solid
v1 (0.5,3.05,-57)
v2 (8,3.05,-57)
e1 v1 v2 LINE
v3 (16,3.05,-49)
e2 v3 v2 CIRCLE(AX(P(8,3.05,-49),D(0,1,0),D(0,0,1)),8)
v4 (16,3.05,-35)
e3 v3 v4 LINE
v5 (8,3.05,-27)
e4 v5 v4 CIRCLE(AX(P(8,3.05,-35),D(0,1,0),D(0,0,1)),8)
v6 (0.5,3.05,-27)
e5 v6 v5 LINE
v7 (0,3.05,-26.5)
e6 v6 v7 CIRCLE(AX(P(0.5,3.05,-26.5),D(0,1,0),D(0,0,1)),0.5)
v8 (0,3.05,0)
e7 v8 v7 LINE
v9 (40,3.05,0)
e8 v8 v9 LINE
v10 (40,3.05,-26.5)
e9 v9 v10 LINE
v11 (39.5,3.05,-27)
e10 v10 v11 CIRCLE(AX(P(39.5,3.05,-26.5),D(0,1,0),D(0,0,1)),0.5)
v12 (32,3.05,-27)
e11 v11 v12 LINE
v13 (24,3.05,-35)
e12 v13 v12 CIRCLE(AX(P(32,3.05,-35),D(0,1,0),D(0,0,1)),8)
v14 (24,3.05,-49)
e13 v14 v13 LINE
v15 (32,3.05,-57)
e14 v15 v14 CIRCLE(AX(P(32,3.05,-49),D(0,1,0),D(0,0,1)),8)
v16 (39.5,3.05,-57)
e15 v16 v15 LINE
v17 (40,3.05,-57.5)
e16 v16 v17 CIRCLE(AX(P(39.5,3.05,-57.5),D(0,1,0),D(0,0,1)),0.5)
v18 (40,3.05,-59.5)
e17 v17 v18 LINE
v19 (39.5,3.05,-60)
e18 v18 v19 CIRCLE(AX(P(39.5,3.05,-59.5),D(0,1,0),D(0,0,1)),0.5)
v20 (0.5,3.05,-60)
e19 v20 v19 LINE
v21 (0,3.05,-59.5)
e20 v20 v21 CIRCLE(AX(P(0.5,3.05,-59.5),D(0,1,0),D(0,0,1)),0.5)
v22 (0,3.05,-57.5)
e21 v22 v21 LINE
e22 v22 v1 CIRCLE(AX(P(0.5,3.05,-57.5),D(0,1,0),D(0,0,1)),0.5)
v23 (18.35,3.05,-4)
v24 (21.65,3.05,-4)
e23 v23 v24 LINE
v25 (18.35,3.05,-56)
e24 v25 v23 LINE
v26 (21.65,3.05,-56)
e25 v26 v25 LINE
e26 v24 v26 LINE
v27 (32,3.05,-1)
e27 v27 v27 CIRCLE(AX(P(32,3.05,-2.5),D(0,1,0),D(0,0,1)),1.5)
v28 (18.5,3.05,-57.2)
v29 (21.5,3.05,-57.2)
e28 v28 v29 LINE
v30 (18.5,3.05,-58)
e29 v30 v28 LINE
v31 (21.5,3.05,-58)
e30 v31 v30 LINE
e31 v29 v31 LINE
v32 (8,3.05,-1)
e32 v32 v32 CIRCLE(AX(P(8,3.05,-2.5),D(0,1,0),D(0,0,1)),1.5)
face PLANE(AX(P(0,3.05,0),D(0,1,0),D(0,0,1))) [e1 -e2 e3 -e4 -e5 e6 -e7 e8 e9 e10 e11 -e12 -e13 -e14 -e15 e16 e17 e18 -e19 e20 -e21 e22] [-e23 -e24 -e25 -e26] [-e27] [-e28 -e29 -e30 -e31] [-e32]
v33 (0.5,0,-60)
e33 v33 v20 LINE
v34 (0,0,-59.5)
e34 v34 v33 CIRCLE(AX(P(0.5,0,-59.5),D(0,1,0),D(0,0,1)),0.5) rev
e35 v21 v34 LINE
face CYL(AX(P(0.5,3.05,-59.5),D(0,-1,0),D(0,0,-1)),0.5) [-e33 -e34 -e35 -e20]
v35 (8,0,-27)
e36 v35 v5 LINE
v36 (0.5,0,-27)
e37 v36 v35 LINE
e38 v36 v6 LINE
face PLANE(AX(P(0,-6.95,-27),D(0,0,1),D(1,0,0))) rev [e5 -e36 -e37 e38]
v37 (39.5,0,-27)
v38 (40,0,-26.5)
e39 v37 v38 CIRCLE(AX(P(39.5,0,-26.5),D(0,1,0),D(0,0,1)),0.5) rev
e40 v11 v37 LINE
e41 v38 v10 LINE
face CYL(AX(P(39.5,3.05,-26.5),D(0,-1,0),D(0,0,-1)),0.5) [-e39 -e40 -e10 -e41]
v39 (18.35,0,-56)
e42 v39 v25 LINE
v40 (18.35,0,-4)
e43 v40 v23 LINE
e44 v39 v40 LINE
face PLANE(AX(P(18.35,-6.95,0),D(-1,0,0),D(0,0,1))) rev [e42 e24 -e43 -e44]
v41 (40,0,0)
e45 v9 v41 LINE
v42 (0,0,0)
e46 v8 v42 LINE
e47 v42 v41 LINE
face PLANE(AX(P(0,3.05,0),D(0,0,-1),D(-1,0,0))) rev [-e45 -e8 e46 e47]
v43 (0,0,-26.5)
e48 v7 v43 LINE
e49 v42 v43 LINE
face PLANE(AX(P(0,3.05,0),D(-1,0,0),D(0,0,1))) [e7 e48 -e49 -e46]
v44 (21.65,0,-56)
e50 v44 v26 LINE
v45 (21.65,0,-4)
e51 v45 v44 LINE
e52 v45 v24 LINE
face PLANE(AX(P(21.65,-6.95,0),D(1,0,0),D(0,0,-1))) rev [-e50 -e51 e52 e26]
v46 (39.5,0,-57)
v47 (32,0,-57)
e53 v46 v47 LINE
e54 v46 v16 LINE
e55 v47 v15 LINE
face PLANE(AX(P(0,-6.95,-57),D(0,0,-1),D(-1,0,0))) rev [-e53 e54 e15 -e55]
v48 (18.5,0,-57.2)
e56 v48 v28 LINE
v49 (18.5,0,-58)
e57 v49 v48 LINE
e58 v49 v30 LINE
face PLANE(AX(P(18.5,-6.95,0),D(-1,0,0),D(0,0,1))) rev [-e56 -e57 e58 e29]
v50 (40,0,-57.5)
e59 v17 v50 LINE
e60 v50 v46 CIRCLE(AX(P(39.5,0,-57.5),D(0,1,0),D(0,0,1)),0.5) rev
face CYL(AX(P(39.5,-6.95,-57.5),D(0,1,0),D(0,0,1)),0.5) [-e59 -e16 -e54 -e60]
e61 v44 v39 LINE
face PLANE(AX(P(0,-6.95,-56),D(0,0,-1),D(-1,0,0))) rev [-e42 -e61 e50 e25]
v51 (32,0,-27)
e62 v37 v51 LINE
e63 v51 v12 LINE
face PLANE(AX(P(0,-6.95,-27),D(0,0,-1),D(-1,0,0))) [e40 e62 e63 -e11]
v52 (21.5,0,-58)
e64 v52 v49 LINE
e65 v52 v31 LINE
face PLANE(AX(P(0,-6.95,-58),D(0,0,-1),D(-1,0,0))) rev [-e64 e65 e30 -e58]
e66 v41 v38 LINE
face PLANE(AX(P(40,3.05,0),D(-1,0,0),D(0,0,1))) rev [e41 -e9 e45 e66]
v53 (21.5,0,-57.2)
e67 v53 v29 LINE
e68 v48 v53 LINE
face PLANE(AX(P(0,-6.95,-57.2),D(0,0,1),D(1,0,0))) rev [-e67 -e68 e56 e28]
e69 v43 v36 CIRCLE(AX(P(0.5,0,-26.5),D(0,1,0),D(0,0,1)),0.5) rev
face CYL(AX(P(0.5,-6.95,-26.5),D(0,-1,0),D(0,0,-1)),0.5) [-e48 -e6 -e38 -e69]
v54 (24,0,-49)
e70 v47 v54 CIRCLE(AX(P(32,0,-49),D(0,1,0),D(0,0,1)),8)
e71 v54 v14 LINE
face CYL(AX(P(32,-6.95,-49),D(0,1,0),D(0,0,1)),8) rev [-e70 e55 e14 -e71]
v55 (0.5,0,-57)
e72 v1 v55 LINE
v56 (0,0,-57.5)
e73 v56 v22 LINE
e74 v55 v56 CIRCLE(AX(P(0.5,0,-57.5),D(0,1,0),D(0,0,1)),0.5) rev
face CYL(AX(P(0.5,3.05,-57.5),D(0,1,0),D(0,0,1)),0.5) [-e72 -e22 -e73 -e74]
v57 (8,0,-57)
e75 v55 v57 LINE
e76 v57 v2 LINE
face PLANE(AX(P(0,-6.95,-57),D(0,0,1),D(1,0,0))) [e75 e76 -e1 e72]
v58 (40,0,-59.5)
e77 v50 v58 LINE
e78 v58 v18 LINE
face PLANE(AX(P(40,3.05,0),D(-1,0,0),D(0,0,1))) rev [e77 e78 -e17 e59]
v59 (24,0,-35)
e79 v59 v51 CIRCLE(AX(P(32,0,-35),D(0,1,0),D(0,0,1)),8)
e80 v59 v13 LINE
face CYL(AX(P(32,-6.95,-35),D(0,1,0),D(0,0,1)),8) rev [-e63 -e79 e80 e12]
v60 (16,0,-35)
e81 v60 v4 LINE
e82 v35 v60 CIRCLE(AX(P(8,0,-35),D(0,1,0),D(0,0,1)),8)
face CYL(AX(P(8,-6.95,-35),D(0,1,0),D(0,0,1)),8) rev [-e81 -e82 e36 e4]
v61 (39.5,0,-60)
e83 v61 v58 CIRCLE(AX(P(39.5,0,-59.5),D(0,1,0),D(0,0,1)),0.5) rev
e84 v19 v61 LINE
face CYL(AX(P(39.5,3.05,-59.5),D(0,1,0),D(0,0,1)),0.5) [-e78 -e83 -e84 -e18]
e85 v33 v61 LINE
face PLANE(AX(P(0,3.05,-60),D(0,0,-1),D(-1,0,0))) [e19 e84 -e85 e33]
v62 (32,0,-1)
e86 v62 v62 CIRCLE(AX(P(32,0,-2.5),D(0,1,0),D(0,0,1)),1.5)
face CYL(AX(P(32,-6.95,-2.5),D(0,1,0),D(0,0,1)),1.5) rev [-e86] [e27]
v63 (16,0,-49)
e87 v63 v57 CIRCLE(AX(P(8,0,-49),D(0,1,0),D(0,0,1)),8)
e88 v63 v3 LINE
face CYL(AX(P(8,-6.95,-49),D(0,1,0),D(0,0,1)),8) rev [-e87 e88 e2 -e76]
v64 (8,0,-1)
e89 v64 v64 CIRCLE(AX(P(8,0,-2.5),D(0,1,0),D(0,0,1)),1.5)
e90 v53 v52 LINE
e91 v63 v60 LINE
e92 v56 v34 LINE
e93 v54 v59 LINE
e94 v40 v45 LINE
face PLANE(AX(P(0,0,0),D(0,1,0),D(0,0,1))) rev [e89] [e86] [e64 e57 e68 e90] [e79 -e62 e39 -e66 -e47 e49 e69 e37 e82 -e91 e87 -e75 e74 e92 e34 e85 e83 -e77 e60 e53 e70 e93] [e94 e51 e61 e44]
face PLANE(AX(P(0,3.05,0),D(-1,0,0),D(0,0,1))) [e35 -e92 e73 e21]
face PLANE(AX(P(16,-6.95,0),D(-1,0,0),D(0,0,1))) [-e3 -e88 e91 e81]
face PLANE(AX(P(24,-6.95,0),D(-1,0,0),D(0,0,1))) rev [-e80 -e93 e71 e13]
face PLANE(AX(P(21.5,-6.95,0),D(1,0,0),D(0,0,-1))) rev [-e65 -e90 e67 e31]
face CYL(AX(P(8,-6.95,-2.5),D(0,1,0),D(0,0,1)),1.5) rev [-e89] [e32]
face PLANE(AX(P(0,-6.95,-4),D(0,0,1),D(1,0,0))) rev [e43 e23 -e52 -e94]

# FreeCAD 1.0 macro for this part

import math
import FreeCAD as App
import Part
import Sketcher
Q = App.Units.Quantity


def edges_at(feature, points):
    """Names of the edges that pass closest to the given points."""
    edges = feature.Shape.Edges
    near = lambda p: min(range(len(edges)), key=lambda i: edges[i].distToShape(Part.Vertex(*p))[0])
    return sorted({f"Edge{near(p) + 1}" for p in points})

doc = App.newDocument("Part")
body = doc.addObject("PartDesign::Body", "Body")

# Sketch on XZ plane
sketch1 = doc.addObject("Sketcher::SketchObject", "Sketch")
body.addObject(sketch1)
sketch1.AttachmentSupport = (doc.XZ_Plane, [""])
sketch1.MapMode = "FlatFace"
sketch1.addGeometry([
    Part.LineSegment(App.Vector(0, -60, 0), App.Vector(0, 0, 0)),
    Part.LineSegment(App.Vector(0, 0, 0), App.Vector(40, 0, 0)),
    Part.LineSegment(App.Vector(40, 0, 0), App.Vector(40, -60, 0)),
    Part.LineSegment(App.Vector(40, -60, 0), App.Vector(0, -60, 0)),
], False)
sketch1.addConstraint([
    Sketcher.Constraint("Coincident", 0, 2, 1, 1),
    Sketcher.Constraint("Coincident", 1, 2, 2, 1),
    Sketcher.Constraint("Coincident", 2, 2, 3, 1),
    Sketcher.Constraint("Coincident", 3, 2, 0, 1),
    Sketcher.Constraint("Vertical", 0),
    Sketcher.Constraint("Horizontal", 1),
    Sketcher.Constraint("Vertical", 2),
    Sketcher.Constraint("Horizontal", 3),
    Sketcher.Constraint("Coincident", 0, 2, -1, 1),
    Sketcher.Constraint("DistanceX", 1, 1, 1, 2, Q("40 mm")),
    Sketcher.Constraint("DistanceY", 0, 1, 0, 2, Q("60 mm")),
])
pad1 = doc.addObject("PartDesign::Pad", "Pad")
body.addObject(pad1)
pad1.Profile = sketch1
pad1.Length = 3.05
pad1.Reversed = True

# Sketch on XZ plane
sketch2 = doc.addObject("Sketcher::SketchObject", "Sketch001")
body.addObject(sketch2)
sketch2.AttachmentSupport = (doc.XZ_Plane, [""])
sketch2.MapMode = "FlatFace"
sketch2.AttachmentOffset = App.Placement(App.Vector(0, 0, -3.05), App.Rotation())
sketch2.addGeometry([
    Part.LineSegment(App.Vector(18.35, -56, 0), App.Vector(18.35, -4, 0)),  # 0
    Part.LineSegment(App.Vector(18.35, -4, 0), App.Vector(21.65, -4, 0)),  # 1
    Part.LineSegment(App.Vector(21.65, -4, 0), App.Vector(21.65, -56, 0)),  # 2
    Part.LineSegment(App.Vector(21.65, -56, 0), App.Vector(18.35, -56, 0)),  # 3
    Part.LineSegment(App.Vector(18.5, -58, 0), App.Vector(18.5, -57.2, 0)),  # 4
    Part.LineSegment(App.Vector(18.5, -57.2, 0), App.Vector(21.5, -57.2, 0)),  # 5
    Part.LineSegment(App.Vector(21.5, -57.2, 0), App.Vector(21.5, -58, 0)),  # 6
    Part.LineSegment(App.Vector(21.5, -58, 0), App.Vector(18.5, -58, 0)),  # 7
], False)
sketch2.addConstraint([
    Sketcher.Constraint("Coincident", 0, 2, 1, 1),
    Sketcher.Constraint("Coincident", 1, 2, 2, 1),
    Sketcher.Constraint("Coincident", 2, 2, 3, 1),
    Sketcher.Constraint("Coincident", 3, 2, 0, 1),
    Sketcher.Constraint("Coincident", 4, 2, 5, 1),
    Sketcher.Constraint("Coincident", 5, 2, 6, 1),
    Sketcher.Constraint("Coincident", 6, 2, 7, 1),
    Sketcher.Constraint("Coincident", 7, 2, 4, 1),
    Sketcher.Constraint("Vertical", 0),
    Sketcher.Constraint("Horizontal", 1),
    Sketcher.Constraint("Vertical", 2),
    Sketcher.Constraint("Horizontal", 3),
    Sketcher.Constraint("Vertical", 4),
    Sketcher.Constraint("Horizontal", 5),
    Sketcher.Constraint("Vertical", 6),
    Sketcher.Constraint("Horizontal", 7),
    Sketcher.Constraint("DistanceX", 5, 1, 5, 2, Q("3 mm")),
    Sketcher.Constraint("DistanceY", 0, 1, 0, 2, Q("52 mm")),
    Sketcher.Constraint("DistanceX", 1, 1, 1, 2, Q("3.3 mm")),
    Sketcher.Constraint("DistanceY", 4, 1, 4, 2, Q("0.8 mm")),
    Sketcher.Constraint("DistanceY", 0, 2, -1, 1, Q("4 mm")),
    Sketcher.Constraint("DistanceY", 6, 2, -1, 1, Q("58 mm")),
    Sketcher.Constraint("DistanceX", -1, 1, 4, 2, Q("18.5 mm")),
    Sketcher.Constraint("DistanceX", -1, 1, 0, 2, Q("18.35 mm")),
])
pocket1 = doc.addObject("PartDesign::Pocket", "Pocket")
body.addObject(pocket1)
pocket1.Profile = sketch2
pocket1.Length = 10
pocket1.Reversed = True

# Sketch on XZ plane
sketch3 = doc.addObject("Sketcher::SketchObject", "Sketch002")
body.addObject(sketch3)
sketch3.AttachmentSupport = (doc.XZ_Plane, [""])
sketch3.MapMode = "FlatFace"
sketch3.AttachmentOffset = App.Placement(App.Vector(0, 0, -3.05), App.Rotation())
sketch3.addGeometry([
    Part.LineSegment(App.Vector(0, -27, 0), App.Vector(8, -27, 0)),  # 0
    Part.ArcOfCircle(Part.Circle(App.Vector(8, -35, 0), App.Vector(0, 0, 1), 8), math.radians(0), math.radians(90)),  # 1
    Part.LineSegment(App.Vector(16, -35, 0), App.Vector(16, -49, 0)),  # 2
    Part.ArcOfCircle(Part.Circle(App.Vector(8, -49, 0), App.Vector(0, 0, 1), 8), math.radians(-90), math.radians(0)),  # 3
    Part.LineSegment(App.Vector(8, -57, 0), App.Vector(0, -57, 0)),  # 4
    Part.LineSegment(App.Vector(0, -57, 0), App.Vector(0, -27, 0)),  # 5
    Part.LineSegment(App.Vector(24, -49, 0), App.Vector(24, -35, 0)),  # 6
    Part.ArcOfCircle(Part.Circle(App.Vector(32, -35, 0), App.Vector(0, 0, 1), 8), math.radians(90), math.radians(180)),  # 7
    Part.LineSegment(App.Vector(32, -27, 0), App.Vector(40, -27, 0)),  # 8
    Part.LineSegment(App.Vector(40, -27, 0), App.Vector(40, -57, 0)),  # 9
    Part.LineSegment(App.Vector(40, -57, 0), App.Vector(32, -57, 0)),  # 10
    Part.ArcOfCircle(Part.Circle(App.Vector(32, -49, 0), App.Vector(0, 0, 1), 8), math.radians(180), math.radians(270)),  # 11
], False)
sketch3.addConstraint([
    Sketcher.Constraint("Tangent", 0, 2, 1, 2),
    Sketcher.Constraint("Tangent", 1, 1, 2, 1),
    Sketcher.Constraint("Tangent", 2, 2, 3, 2),
    Sketcher.Constraint("Tangent", 3, 1, 4, 1),
    Sketcher.Constraint("Coincident", 4, 2, 5, 1),
    Sketcher.Constraint("Coincident", 5, 2, 0, 1),
    Sketcher.Constraint("Tangent", 6, 2, 7, 2),
    Sketcher.Constraint("Tangent", 7, 1, 8, 1),
    Sketcher.Constraint("Coincident", 8, 2, 9, 1),
    Sketcher.Constraint("Coincident", 9, 2, 10, 1),
    Sketcher.Constraint("Tangent", 10, 2, 11, 2),
    Sketcher.Constraint("Tangent", 11, 1, 6, 1),
    Sketcher.Constraint("Horizontal", 0),
    Sketcher.Constraint("Vertical", 2),
    Sketcher.Constraint("Horizontal", 4),
    Sketcher.Constraint("Vertical", 5),
    Sketcher.Constraint("Vertical", 6),
    Sketcher.Constraint("Horizontal", 8),
    Sketcher.Constraint("Vertical", 9),
    Sketcher.Constraint("Horizontal", 10),
    Sketcher.Constraint("Equal", 1, 3),
    Sketcher.Constraint("Equal", 3, 7),
    Sketcher.Constraint("Equal", 7, 11),
    Sketcher.Constraint("PointOnObject", 4, 2, -2),
    Sketcher.Constraint("Horizontal", 1, 3, 7, 3),
    Sketcher.Constraint("Horizontal", 3, 3, 11, 3),
    Sketcher.Constraint("Equal", 4, 8),
    Sketcher.Constraint("Radius", 1, Q("8 mm")),
    Sketcher.Constraint("DistanceX", 0, 1, 0, 2, Q("8 mm")),
    Sketcher.Constraint("DistanceY", 2, 2, 2, 1, Q("14 mm")),
    Sketcher.Constraint("DistanceY", 1, 3, -1, 1, Q("35 mm")),
    Sketcher.Constraint("DistanceX", -1, 1, 7, 3, Q("32 mm")),
])
pocket2 = doc.addObject("PartDesign::Pocket", "Pocket001")
body.addObject(pocket2)
pocket2.Profile = sketch3
pocket2.Length = 10
pocket2.Reversed = True

# Sketch on XZ plane
sketch4 = doc.addObject("Sketcher::SketchObject", "Sketch003")
body.addObject(sketch4)
sketch4.AttachmentSupport = (doc.XZ_Plane, [""])
sketch4.MapMode = "FlatFace"
sketch4.AttachmentOffset = App.Placement(App.Vector(0, 0, -3.05), App.Rotation())
sketch4.addGeometry([
    Part.ArcOfCircle(Part.Circle(App.Vector(8, -2.5, 0), App.Vector(0, 0, 1), 1.5), math.radians(90), math.radians(360)),
    Part.ArcOfCircle(Part.Circle(App.Vector(8, -2.5, 0), App.Vector(0, 0, 1), 1.5), math.radians(0), math.radians(90)),
    Part.Circle(App.Vector(32, -2.5, 0), App.Vector(0, 0, 1), 1.5),
], False)
sketch4.addConstraint([
    Sketcher.Constraint("Tangent", 0, 1, 1, 2),
    Sketcher.Constraint("Coincident", 1, 1, 0, 2),
    Sketcher.Constraint("Equal", 1, 2),
    Sketcher.Constraint("Horizontal", 1, 3, 2, 3),
    Sketcher.Constraint("Horizontal", 2, 3, 1, 1),
    Sketcher.Constraint("Vertical", 1, 3, 0, 1),
    Sketcher.Constraint("Diameter", 2, Q("3 mm")),
    Sketcher.Constraint("DistanceX", -1, 1, 0, 3, Q("8 mm")),
    Sketcher.Constraint("DistanceX", -1, 1, 2, 3, Q("32 mm")),
    Sketcher.Constraint("DistanceY", 0, 1, -1, 1, Q("1 mm")),
])
pocket3 = doc.addObject("PartDesign::Pocket", "Pocket002")
body.addObject(pocket3)
pocket3.Profile = sketch4
pocket3.Length = 10
pocket3.Reversed = True
doc.recompute()

fillet = doc.addObject("PartDesign::Fillet", "Fillet")
body.addObject(fillet)
fillet.Base = (pocket3, edges_at(pocket3, [
    (0, 1.525, -27),
    (0, 1.525, -57),
    (40, 1.525, -57),
    (40, 1.525, -27),
    (0, 1.525, -60),
    (40, 1.525, -60),
]))
fillet.Radius = 0.5

doc.recompute()
